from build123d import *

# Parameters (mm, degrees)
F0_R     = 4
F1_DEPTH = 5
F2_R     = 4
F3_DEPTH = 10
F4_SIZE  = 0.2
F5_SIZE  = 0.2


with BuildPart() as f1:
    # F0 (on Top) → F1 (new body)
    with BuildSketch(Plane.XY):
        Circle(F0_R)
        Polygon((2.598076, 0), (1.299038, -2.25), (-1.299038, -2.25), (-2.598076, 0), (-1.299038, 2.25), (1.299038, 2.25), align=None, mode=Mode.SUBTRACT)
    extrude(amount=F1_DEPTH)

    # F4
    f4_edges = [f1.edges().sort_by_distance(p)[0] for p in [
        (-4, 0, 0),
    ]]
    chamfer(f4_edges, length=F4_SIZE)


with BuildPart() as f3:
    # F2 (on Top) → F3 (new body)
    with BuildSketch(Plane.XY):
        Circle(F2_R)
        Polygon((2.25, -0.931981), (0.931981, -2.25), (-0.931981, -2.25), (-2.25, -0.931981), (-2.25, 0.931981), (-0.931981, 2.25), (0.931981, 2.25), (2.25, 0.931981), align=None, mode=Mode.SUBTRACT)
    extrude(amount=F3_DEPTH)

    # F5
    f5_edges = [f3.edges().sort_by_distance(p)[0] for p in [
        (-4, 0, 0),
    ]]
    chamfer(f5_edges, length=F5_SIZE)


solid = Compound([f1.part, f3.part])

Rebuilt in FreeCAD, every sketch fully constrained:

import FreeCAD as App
import Part
import Sketcher
from FreeCAD import Vector
Q = App.Units.Quantity


def edges_at(feature, points):
    """Names of the edges that pass closest to the given points."""
    edges = feature.Shape.Edges
    near = lambda p: min(range(len(edges)), key=lambda i: edges[i].distToShape(Part.Vertex(*p))[0])
    return sorted({f"Edge{near(p) + 1}" for p in points})


def add_polygon(sketch, points):
    """Adds a closed chain of lines whose ends are joined by coincident constraints."""
    first, n = sketch.GeometryCount, len(points)
    for a, b in zip(points, points[1:] + points[:1]):
        sketch.addGeometry(Part.LineSegment(App.Vector(*a, 0), App.Vector(*b, 0)), False)
    for i in range(n):
        sketch.addConstraint(Sketcher.Constraint("Coincident", first + i, 2, first + (i + 1) % n, 1))

doc = App.newDocument("Part")
body = doc.addObject("PartDesign::Body", "Body")

# Sketch on XY plane
sketch1 = body.newObject("Sketcher::SketchObject", "Sketch")
sketch1.AttachmentSupport = (doc.getObject("XY_Plane"), [""])
sketch1.MapMode = "FlatFace"
sketch1.addGeometry(Part.Circle(Vector(0, 0, 0), Vector(0, 0, 1), 4), False)  # 0
add_polygon(sketch1, [(1.3, 2.2), (2.6, 0), (1.3, -2.2), (-1.3, -2.2), (-2.6, 0), (-1.3, 2.2)])  # lines 1-6
sketch1.addConstraint(Sketcher.Constraint("Horizontal", 3))
sketch1.addConstraint(Sketcher.Constraint("Horizontal", 6))
sketch1.addConstraint(Sketcher.Constraint("Coincident", 0, 3, -1, 1))
sketch1.addConstraint(Sketcher.Constraint("Symmetric", 1, 2, 4, 2, -1, 1))
sketch1.addConstraint(Sketcher.Constraint("Symmetric", 2, 2, 5, 2, -1, 1))
sketch1.addConstraint(Sketcher.Constraint("PointOnObject", 1, 2, -1))
sketch1.addConstraint(Sketcher.Constraint("Parallel", 1, 4))
sketch1.addConstraint(Sketcher.Constraint("Vertical", 3, 2, 5, 2))
sketch1.addConstraint(Sketcher.Constraint("Diameter", 0, 8.0))
sketch1.addConstraint(Sketcher.Constraint("Angle", 1, Q("-60.000002 deg")))
sketch1.addConstraint(Sketcher.Constraint("DistanceY", 3, 2, 5, 2, 4.5))
sketch1.addConstraint(Sketcher.Constraint("DistanceX", 3, 2, 3, 1, 2.598076))
pad1 = body.newObject("PartDesign::Pad", "Pad")
pad1.Profile = sketch1
pad1.Length = 5
doc.recompute()

chamfer = body.newObject("PartDesign::Chamfer", "Chamfer")
chamfer.Base = (pad1, edges_at(pad1, [(-4, 0, 0)]))
chamfer.Size = 0.2
body2 = doc.addObject("PartDesign::Body", "Body001")

# Sketch on XY plane
sketch2 = body2.newObject("Sketcher::SketchObject", "Sketch001")
sketch2.AttachmentSupport = (doc.getObject("XY_Plane001"), [""])
sketch2.MapMode = "FlatFace"
sketch2.addGeometry(Part.Circle(Vector(0, 0, 0), Vector(0, 0, 1), 4), False)  # 0
add_polygon(sketch2, [(2.2, 0.9), (2.2, -0.9), (0.9, -2.2), (-0.9, -2.2), (-2.2, -0.9), (-2.2, 0.9), (-0.9, 2.2), (0.9, 2.2)])  # lines 1-8
sketch2.addConstraint(Sketcher.Constraint("Vertical", 1))
sketch2.addConstraint(Sketcher.Constraint("Horizontal", 3))
sketch2.addConstraint(Sketcher.Constraint("Vertical", 5))
sketch2.addConstraint(Sketcher.Constraint("Horizontal", 7))
sketch2.addConstraint(Sketcher.Constraint("Coincident", 0, 3, -1, 1))
sketch2.addConstraint(Sketcher.Constraint("Symmetric", 1, 2, 5, 2, -1, 1))
sketch2.addConstraint(Sketcher.Constraint("Symmetric", 2, 2, 6, 2, -1, 1))
sketch2.addConstraint(Sketcher.Constraint("Perpendicular", 2, 4))
sketch2.addConstraint(Sketcher.Constraint("Perpendicular", 6, 8))
sketch2.addConstraint(Sketcher.Constraint("Horizontal", 1, 2, 4, 2))
sketch2.addConstraint(Sketcher.Constraint("Horizontal", 5, 2, 8, 2))
sketch2.addConstraint(Sketcher.Constraint("Vertical", 3, 2, 6, 2))
sketch2.addConstraint(Sketcher.Constraint("Equal", 7, 1))
sketch2.addConstraint(Sketcher.Constraint("Diameter", 0, 8.0))
sketch2.addConstraint(Sketcher.Constraint("DistanceX", 4, 2, 1, 2, 4.5))
sketch2.addConstraint(Sketcher.Constraint("DistanceX", 3, 2, 3, 1, 1.863962))
pad2 = body2.newObject("PartDesign::Pad", "Pad001")
pad2.Profile = sketch2
pad2.Length = 10
doc.recompute()

chamfer2 = body2.newObject("PartDesign::Chamfer", "Chamfer001")
chamfer2.Base = (pad2, edges_at(pad2, [(-4, 0, 0)]))
chamfer2.Size = 0.2

doc.recompute()
